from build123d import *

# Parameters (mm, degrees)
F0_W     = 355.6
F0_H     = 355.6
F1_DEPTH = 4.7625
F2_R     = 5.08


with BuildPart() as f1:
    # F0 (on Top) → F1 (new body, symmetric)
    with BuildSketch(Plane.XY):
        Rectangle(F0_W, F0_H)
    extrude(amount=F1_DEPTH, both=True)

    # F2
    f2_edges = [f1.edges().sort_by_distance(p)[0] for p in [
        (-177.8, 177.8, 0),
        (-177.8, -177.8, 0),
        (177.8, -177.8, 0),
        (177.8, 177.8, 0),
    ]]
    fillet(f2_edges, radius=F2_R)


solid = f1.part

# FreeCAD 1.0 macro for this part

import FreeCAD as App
import Part
import Sketcher
Q = App.Units.Quantity


def edges_at(feature, points):
    """Names of the edges that pass closest to the given points."""
    edges = feature.Shape.Edges
    near = lambda p: min(range(len(edges)), key=lambda i: edges[i].distToShape(Part.Vertex(*p))[0])
    return sorted({f"Edge{near(p) + 1}" for p in points})


def add_polygon(sketch, points):
    """Adds a closed chain of lines whose ends are joined by coincident constraints."""
    first, n = sketch.GeometryCount, len(points)
    for a, b in zip(points, points[1:] + points[:1]):
        sketch.addGeometry(Part.LineSegment(App.Vector(*a, 0), App.Vector(*b, 0)), False)
    for i in range(n):
        sketch.addConstraint(Sketcher.Constraint("Coincident", first + i, 2, first + (i + 1) % n, 1))

doc = App.newDocument("Part")
body = doc.addObject("PartDesign::Body", "Body")

# Sketch on XY plane
sketch1 = body.newObject("Sketcher::SketchObject", "Sketch")
sketch1.AttachmentSupport = (doc.getObject("XY_Plane"), [""])
sketch1.MapMode = "FlatFace"
add_polygon(sketch1, [(-177.8, 177.8), (-177.8, -177.8), (177.8, -177.8), (177.8, 177.8)])  # lines 0-3
sketch1.addConstraint([
    Sketcher.Constraint("Vertical", 0),
    Sketcher.Constraint("Horizontal", 1),
    Sketcher.Constraint("Vertical", 2),
    Sketcher.Constraint("Horizontal", 3),
    Sketcher.Constraint("Symmetric", 0, 2, 2, 2, -1, 1),
    Sketcher.Constraint("Equal", 3, 0),
    Sketcher.Constraint("DistanceX", 1, 1, 1, 2, Q("14 in")),
])
pad1 = body.newObject("PartDesign::Pad", "Pad")
pad1.Profile = sketch1
pad1.Length = Q("0.375 in")
pad1.Midplane = True
doc.recompute()

fillet = body.newObject("PartDesign::Fillet", "Fillet")
fillet.Base = (pad1, edges_at(pad1, [
    (-177.8, 177.8, 0),
    (-177.8, -177.8, 0),
    (177.8, -177.8, 0),
    (177.8, 177.8, 0),
]))
fillet.Radius = Q("0.2 in")

doc.recompute()
